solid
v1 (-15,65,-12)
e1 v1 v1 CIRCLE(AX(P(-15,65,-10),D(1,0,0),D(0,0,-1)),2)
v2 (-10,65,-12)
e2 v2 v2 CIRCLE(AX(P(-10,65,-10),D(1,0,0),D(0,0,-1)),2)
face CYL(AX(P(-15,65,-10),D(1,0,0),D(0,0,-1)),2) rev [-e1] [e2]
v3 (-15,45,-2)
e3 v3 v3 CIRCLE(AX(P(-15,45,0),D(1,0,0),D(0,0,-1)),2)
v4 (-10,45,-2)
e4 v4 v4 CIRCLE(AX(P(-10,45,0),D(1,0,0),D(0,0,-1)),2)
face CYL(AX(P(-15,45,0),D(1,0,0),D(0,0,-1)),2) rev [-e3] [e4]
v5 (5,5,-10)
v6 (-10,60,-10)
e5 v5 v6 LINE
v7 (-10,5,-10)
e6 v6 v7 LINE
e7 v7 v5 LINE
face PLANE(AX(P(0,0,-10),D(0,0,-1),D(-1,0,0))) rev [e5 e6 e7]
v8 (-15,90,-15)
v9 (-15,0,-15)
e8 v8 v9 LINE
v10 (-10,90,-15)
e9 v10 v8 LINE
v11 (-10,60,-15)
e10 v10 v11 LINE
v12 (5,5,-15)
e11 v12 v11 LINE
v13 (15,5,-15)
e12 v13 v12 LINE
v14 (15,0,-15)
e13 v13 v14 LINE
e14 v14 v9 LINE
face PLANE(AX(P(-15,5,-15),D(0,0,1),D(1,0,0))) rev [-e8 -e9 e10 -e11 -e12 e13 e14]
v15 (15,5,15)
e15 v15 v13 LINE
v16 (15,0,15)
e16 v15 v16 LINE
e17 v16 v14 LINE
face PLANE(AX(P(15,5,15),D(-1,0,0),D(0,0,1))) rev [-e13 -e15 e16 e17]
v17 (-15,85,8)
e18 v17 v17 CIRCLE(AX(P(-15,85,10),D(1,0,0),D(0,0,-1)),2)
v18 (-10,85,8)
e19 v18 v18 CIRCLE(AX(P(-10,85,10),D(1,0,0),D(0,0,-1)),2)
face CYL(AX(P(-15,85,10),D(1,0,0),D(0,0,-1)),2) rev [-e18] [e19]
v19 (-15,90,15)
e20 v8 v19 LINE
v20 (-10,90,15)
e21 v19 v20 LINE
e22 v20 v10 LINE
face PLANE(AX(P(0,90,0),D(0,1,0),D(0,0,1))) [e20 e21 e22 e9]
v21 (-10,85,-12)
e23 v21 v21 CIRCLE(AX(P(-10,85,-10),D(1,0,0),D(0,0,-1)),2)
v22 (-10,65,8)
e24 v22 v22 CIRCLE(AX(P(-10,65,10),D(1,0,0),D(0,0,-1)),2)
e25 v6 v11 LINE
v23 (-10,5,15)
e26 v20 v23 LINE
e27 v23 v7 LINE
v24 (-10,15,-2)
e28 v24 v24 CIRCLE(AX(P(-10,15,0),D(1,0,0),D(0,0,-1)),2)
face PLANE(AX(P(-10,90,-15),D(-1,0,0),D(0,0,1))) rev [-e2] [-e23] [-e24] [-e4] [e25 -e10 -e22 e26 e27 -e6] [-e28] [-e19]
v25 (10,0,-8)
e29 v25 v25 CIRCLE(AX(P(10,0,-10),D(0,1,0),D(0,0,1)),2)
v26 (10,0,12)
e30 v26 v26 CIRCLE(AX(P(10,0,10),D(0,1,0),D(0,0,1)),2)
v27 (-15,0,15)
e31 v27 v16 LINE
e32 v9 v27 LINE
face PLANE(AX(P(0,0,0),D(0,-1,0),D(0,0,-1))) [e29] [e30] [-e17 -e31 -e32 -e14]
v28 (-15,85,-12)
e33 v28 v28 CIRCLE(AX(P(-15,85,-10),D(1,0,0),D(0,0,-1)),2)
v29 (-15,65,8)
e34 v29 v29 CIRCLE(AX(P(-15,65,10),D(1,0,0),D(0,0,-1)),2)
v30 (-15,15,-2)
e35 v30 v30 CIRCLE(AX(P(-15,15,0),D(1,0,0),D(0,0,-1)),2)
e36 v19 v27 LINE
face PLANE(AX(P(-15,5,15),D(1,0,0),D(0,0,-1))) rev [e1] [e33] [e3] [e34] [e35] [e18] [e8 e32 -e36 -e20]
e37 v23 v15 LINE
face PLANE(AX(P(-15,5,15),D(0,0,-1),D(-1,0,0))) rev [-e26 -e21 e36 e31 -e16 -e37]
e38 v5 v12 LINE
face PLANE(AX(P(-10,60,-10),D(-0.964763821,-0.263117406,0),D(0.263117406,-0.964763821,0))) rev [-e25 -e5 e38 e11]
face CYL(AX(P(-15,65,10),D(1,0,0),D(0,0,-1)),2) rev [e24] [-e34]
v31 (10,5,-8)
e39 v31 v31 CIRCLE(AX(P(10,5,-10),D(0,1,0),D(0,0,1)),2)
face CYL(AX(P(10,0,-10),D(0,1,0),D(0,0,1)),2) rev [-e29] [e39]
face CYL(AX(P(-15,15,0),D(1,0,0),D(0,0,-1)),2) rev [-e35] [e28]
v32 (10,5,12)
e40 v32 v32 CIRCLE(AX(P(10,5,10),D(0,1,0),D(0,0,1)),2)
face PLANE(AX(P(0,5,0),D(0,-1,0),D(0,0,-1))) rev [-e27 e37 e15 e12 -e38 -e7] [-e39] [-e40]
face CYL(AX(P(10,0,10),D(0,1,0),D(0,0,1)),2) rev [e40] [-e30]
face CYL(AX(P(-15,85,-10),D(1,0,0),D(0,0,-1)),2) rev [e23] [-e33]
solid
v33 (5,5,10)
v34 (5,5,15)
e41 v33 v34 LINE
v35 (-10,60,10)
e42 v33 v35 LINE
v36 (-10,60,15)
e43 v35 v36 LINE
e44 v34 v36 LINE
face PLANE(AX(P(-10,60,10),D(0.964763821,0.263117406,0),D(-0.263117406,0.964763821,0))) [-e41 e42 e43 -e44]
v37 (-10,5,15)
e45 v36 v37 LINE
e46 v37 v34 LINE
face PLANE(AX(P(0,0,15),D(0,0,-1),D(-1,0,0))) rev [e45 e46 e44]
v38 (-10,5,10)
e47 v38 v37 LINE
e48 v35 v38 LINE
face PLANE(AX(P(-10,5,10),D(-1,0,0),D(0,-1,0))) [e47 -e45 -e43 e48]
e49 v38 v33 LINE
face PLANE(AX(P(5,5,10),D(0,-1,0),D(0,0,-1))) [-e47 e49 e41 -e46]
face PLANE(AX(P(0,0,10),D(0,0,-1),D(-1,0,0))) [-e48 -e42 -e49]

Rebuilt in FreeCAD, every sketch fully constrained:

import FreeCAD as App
import Part
import Sketcher
Q = App.Units.Quantity

doc = App.newDocument("Part")
body = doc.addObject("PartDesign::Body", "Body")

# Sketch on XZ plane
sketch1 = doc.addObject("Sketcher::SketchObject", "Sketch")
body.addObject(sketch1)
sketch1.AttachmentSupport = (doc.XZ_Plane, [""])
sketch1.MapMode = "FlatFace"
sketch1.addGeometry([
    Part.LineSegment(App.Vector(-15, -15, 0), App.Vector(-15, 15, 0)),
    Part.LineSegment(App.Vector(-15, 15, 0), App.Vector(15, 15, 0)),
    Part.LineSegment(App.Vector(15, 15, 0), App.Vector(15, -15, 0)),
    Part.LineSegment(App.Vector(15, -15, 0), App.Vector(-15, -15, 0)),
], False)
sketch1.addConstraint([
    Sketcher.Constraint("Coincident", 0, 2, 1, 1),
    Sketcher.Constraint("Coincident", 1, 2, 2, 1),
    Sketcher.Constraint("Coincident", 2, 2, 3, 1),
    Sketcher.Constraint("Coincident", 3, 2, 0, 1),
    Sketcher.Constraint("Vertical", 0),
    Sketcher.Constraint("Horizontal", 1),
    Sketcher.Constraint("Vertical", 2),
    Sketcher.Constraint("Horizontal", 3),
    Sketcher.Constraint("Symmetric", 0, 2, 2, 2, -1, 1),
    Sketcher.Constraint("Equal", 3, 0),
    Sketcher.Constraint("DistanceX", 1, 1, 1, 2, Q("30 mm")),
])
pad1 = doc.addObject("PartDesign::Pad", "Pad")
body.addObject(pad1)
pad1.Profile = sketch1
pad1.Length = 5
pad1.Reversed = True

# Sketch on XZ plane
sketch2 = doc.addObject("Sketcher::SketchObject", "Sketch001")
body.addObject(sketch2)
sketch2.AttachmentSupport = (doc.XZ_Plane, [""])
sketch2.MapMode = "FlatFace"
sketch2.AttachmentOffset = App.Placement(App.Vector(0, 0, -5), App.Rotation())
sketch2.addGeometry([
    Part.LineSegment(App.Vector(-15, -15, 0), App.Vector(-15, 15, 0)),
    Part.LineSegment(App.Vector(-15, 15, 0), App.Vector(-10, 15, 0)),
    Part.LineSegment(App.Vector(-10, 15, 0), App.Vector(-10, -15, 0)),
    Part.LineSegment(App.Vector(-10, -15, 0), App.Vector(-15, -15, 0)),
], False)
sketch2.addConstraint([
    Sketcher.Constraint("Coincident", 0, 2, 1, 1),
    Sketcher.Constraint("Coincident", 1, 2, 2, 1),
    Sketcher.Constraint("Coincident", 2, 2, 3, 1),
    Sketcher.Constraint("Coincident", 3, 2, 0, 1),
    Sketcher.Constraint("Vertical", 0),
    Sketcher.Constraint("Horizontal", 1),
    Sketcher.Constraint("Vertical", 2),
    Sketcher.Constraint("Horizontal", 3),
    Sketcher.Constraint("DistanceX", 1, 1, 1, 2, Q("5 mm")),
    Sketcher.Constraint("DistanceY", 0, 1, 0, 2, Q("30 mm")),
    Sketcher.Constraint("DistanceX", 0, 2, -1, 1, Q("15 mm")),
    Sketcher.Constraint("DistanceY", -1, 1, 0, 2, Q("15 mm")),
])
pad2 = doc.addObject("PartDesign::Pad", "Pad001")
body.addObject(pad2)
pad2.Profile = sketch2
pad2.Length = 85
pad2.Reversed = True

# Sketch on XY plane
sketch3 = doc.addObject("Sketcher::SketchObject", "Sketch002")
body.addObject(sketch3)
sketch3.AttachmentSupport = (doc.XY_Plane, [""])
sketch3.MapMode = "FlatFace"
sketch3.AttachmentOffset = App.Placement(App.Vector(0, 0, -15), App.Rotation())
sketch3.addGeometry([
    Part.LineSegment(App.Vector(-10, 60, 0), App.Vector(-10, 5, 0)),
    Part.LineSegment(App.Vector(-10, 5, 0), App.Vector(5, 5, 0)),
    Part.LineSegment(App.Vector(5, 5, 0), App.Vector(-10, 60, 0)),
], False)
sketch3.addConstraint([
    Sketcher.Constraint("Coincident", 0, 2, 1, 1),
    Sketcher.Constraint("Coincident", 1, 2, 2, 1),
    Sketcher.Constraint("Coincident", 2, 2, 0, 1),
    Sketcher.Constraint("Vertical", 0),
    Sketcher.Constraint("Horizontal", 1),
    Sketcher.Constraint("DistanceX", 1, 1, 1, 2, Q("15 mm")),
    Sketcher.Constraint("DistanceY", 0, 2, 0, 1, Q("55 mm")),
    Sketcher.Constraint("DistanceX", 0, 2, -1, 1, Q("10 mm")),
    Sketcher.Constraint("DistanceY", -1, 1, 0, 2, Q("5 mm")),
])
pad3 = doc.addObject("PartDesign::Pad", "Pad002")
body.addObject(pad3)
pad3.Profile = sketch3
pad3.Length = 5

# Sketch on YZ plane
sketch4 = doc.addObject("Sketcher::SketchObject", "Sketch003")
body.addObject(sketch4)
sketch4.AttachmentSupport = (doc.YZ_Plane, [""])
sketch4.MapMode = "FlatFace"
sketch4.AttachmentOffset = App.Placement(App.Vector(0, 0, -10), App.Rotation())
sketch4.addGeometry([
    Part.Circle(App.Vector(85, 10, 0), App.Vector(0, 0, 1), 2),
    Part.Circle(App.Vector(85, -10, 0), App.Vector(0, 0, 1), 2),
    Part.Circle(App.Vector(15, 0, 0), App.Vector(0, 0, 1), 2),
    Part.Circle(App.Vector(45, 0, 0), App.Vector(0, 0, 1), 2),
], False)
sketch4.addConstraint([
    Sketcher.Constraint("Equal", 0, 1),
    Sketcher.Constraint("Equal", 1, 2),
    Sketcher.Constraint("Equal", 2, 3),
    Sketcher.Constraint("Symmetric", 0, 3, 1, 3, -1),
    Sketcher.Constraint("PointOnObject", 2, 3, -1),
    Sketcher.Constraint("PointOnObject", 3, 3, -1),
    Sketcher.Constraint("Diameter", 0, Q("4 mm")),
    Sketcher.Constraint("DistanceX", -1, 1, 0, 3, Q("85 mm")),
    Sketcher.Constraint("DistanceY", -1, 1, 0, 3, Q("10 mm")),
    Sketcher.Constraint("DistanceX", -1, 1, 2, 3, Q("15 mm")),
    Sketcher.Constraint("DistanceX", -1, 1, 3, 3, Q("45 mm")),
])
pocket1 = doc.addObject("PartDesign::Pocket", "Pocket")
body.addObject(pocket1)
pocket1.Profile = sketch4
pocket1.Length = 5

# Sketch on XZ plane
sketch5 = doc.addObject("Sketcher::SketchObject", "Sketch004")
body.addObject(sketch5)
sketch5.AttachmentSupport = (doc.XZ_Plane, [""])
sketch5.MapMode = "FlatFace"
sketch5.AttachmentOffset = App.Placement(App.Vector(0, 0, -5), App.Rotation())
sketch5.addGeometry([
    Part.Circle(App.Vector(10, -10, 0), App.Vector(0, 0, 1), 2),
    Part.Circle(App.Vector(10, 10, 0), App.Vector(0, 0, 1), 2),
], False)
sketch5.addConstraint([
    Sketcher.Constraint("Equal", 0, 1),
    Sketcher.Constraint("Symmetric", 0, 3, 1, 3, -1),
    Sketcher.Constraint("Diameter", 0, Q("4 mm")),
    Sketcher.Constraint("DistanceX", -1, 1, 0, 3, Q("10 mm")),
    Sketcher.Constraint("DistanceY", 0, 3, -1, 1, Q("10 mm")),
])
pocket2 = doc.addObject("PartDesign::Pocket", "Pocket001")
body.addObject(pocket2)
pocket2.Profile = sketch5
pocket2.Length = 5
pocket2.Reversed = True

# Sketch on YZ plane
sketch6 = doc.addObject("Sketcher::SketchObject", "Sketch005")
body.addObject(sketch6)
sketch6.AttachmentSupport = (doc.YZ_Plane, [""])
sketch6.MapMode = "FlatFace"
sketch6.AttachmentOffset = App.Placement(App.Vector(0, 0, -10), App.Rotation())
sketch6.addGeometry([
    Part.Circle(App.Vector(65, 10, 0), App.Vector(0, 0, 1), 2),
    Part.Circle(App.Vector(65, -10, 0), App.Vector(0, 0, 1), 2),
], False)
sketch6.addConstraint([
    Sketcher.Constraint("Equal", 0, 1),
    Sketcher.Constraint("Symmetric", 0, 3, 1, 3, -1),
    Sketcher.Constraint("Diameter", 0, Q("4 mm")),
    Sketcher.Constraint("DistanceX", -1, 1, 0, 3, Q("65 mm")),
    Sketcher.Constraint("DistanceY", -1, 1, 0, 3, Q("10 mm")),
])
pocket3 = doc.addObject("PartDesign::Pocket", "Pocket002")
body.addObject(pocket3)
pocket3.Profile = sketch6
pocket3.Length = 5
body2 = doc.addObject("PartDesign::Body", "Body001")

# Sketch on XY plane
sketch7 = doc.addObject("Sketcher::SketchObject", "Sketch006")
body2.addObject(sketch7)
sketch7.AttachmentSupport = (doc.getObject("XY_Plane001"), [""])
sketch7.MapMode = "FlatFace"
sketch7.AttachmentOffset = App.Placement(App.Vector(0, 0, 15), App.Rotation())
sketch7.addGeometry([
    Part.LineSegment(App.Vector(-10, 60, 0), App.Vector(-10, 5, 0)),
    Part.LineSegment(App.Vector(-10, 5, 0), App.Vector(5, 5, 0)),
    Part.LineSegment(App.Vector(5, 5, 0), App.Vector(-10, 60, 0)),
], False)
sketch7.addConstraint([
    Sketcher.Constraint("Coincident", 0, 2, 1, 1),
    Sketcher.Constraint("Coincident", 1, 2, 2, 1),
    Sketcher.Constraint("Coincident", 2, 2, 0, 1),
    Sketcher.Constraint("Vertical", 0),
    Sketcher.Constraint("Horizontal", 1),
    Sketcher.Constraint("DistanceX", 1, 1, 1, 2, Q("15 mm")),
    Sketcher.Constraint("DistanceY", 0, 2, 0, 1, Q("55 mm")),
    Sketcher.Constraint("DistanceX", 0, 2, -1, 1, Q("10 mm")),
    Sketcher.Constraint("DistanceY", -1, 1, 0, 2, Q("5 mm")),
])
pad4 = doc.addObject("PartDesign::Pad", "Pad003")
body2.addObject(pad4)
pad4.Profile = sketch7
pad4.Length = 5
pad4.Reversed = True

doc.recompute()
